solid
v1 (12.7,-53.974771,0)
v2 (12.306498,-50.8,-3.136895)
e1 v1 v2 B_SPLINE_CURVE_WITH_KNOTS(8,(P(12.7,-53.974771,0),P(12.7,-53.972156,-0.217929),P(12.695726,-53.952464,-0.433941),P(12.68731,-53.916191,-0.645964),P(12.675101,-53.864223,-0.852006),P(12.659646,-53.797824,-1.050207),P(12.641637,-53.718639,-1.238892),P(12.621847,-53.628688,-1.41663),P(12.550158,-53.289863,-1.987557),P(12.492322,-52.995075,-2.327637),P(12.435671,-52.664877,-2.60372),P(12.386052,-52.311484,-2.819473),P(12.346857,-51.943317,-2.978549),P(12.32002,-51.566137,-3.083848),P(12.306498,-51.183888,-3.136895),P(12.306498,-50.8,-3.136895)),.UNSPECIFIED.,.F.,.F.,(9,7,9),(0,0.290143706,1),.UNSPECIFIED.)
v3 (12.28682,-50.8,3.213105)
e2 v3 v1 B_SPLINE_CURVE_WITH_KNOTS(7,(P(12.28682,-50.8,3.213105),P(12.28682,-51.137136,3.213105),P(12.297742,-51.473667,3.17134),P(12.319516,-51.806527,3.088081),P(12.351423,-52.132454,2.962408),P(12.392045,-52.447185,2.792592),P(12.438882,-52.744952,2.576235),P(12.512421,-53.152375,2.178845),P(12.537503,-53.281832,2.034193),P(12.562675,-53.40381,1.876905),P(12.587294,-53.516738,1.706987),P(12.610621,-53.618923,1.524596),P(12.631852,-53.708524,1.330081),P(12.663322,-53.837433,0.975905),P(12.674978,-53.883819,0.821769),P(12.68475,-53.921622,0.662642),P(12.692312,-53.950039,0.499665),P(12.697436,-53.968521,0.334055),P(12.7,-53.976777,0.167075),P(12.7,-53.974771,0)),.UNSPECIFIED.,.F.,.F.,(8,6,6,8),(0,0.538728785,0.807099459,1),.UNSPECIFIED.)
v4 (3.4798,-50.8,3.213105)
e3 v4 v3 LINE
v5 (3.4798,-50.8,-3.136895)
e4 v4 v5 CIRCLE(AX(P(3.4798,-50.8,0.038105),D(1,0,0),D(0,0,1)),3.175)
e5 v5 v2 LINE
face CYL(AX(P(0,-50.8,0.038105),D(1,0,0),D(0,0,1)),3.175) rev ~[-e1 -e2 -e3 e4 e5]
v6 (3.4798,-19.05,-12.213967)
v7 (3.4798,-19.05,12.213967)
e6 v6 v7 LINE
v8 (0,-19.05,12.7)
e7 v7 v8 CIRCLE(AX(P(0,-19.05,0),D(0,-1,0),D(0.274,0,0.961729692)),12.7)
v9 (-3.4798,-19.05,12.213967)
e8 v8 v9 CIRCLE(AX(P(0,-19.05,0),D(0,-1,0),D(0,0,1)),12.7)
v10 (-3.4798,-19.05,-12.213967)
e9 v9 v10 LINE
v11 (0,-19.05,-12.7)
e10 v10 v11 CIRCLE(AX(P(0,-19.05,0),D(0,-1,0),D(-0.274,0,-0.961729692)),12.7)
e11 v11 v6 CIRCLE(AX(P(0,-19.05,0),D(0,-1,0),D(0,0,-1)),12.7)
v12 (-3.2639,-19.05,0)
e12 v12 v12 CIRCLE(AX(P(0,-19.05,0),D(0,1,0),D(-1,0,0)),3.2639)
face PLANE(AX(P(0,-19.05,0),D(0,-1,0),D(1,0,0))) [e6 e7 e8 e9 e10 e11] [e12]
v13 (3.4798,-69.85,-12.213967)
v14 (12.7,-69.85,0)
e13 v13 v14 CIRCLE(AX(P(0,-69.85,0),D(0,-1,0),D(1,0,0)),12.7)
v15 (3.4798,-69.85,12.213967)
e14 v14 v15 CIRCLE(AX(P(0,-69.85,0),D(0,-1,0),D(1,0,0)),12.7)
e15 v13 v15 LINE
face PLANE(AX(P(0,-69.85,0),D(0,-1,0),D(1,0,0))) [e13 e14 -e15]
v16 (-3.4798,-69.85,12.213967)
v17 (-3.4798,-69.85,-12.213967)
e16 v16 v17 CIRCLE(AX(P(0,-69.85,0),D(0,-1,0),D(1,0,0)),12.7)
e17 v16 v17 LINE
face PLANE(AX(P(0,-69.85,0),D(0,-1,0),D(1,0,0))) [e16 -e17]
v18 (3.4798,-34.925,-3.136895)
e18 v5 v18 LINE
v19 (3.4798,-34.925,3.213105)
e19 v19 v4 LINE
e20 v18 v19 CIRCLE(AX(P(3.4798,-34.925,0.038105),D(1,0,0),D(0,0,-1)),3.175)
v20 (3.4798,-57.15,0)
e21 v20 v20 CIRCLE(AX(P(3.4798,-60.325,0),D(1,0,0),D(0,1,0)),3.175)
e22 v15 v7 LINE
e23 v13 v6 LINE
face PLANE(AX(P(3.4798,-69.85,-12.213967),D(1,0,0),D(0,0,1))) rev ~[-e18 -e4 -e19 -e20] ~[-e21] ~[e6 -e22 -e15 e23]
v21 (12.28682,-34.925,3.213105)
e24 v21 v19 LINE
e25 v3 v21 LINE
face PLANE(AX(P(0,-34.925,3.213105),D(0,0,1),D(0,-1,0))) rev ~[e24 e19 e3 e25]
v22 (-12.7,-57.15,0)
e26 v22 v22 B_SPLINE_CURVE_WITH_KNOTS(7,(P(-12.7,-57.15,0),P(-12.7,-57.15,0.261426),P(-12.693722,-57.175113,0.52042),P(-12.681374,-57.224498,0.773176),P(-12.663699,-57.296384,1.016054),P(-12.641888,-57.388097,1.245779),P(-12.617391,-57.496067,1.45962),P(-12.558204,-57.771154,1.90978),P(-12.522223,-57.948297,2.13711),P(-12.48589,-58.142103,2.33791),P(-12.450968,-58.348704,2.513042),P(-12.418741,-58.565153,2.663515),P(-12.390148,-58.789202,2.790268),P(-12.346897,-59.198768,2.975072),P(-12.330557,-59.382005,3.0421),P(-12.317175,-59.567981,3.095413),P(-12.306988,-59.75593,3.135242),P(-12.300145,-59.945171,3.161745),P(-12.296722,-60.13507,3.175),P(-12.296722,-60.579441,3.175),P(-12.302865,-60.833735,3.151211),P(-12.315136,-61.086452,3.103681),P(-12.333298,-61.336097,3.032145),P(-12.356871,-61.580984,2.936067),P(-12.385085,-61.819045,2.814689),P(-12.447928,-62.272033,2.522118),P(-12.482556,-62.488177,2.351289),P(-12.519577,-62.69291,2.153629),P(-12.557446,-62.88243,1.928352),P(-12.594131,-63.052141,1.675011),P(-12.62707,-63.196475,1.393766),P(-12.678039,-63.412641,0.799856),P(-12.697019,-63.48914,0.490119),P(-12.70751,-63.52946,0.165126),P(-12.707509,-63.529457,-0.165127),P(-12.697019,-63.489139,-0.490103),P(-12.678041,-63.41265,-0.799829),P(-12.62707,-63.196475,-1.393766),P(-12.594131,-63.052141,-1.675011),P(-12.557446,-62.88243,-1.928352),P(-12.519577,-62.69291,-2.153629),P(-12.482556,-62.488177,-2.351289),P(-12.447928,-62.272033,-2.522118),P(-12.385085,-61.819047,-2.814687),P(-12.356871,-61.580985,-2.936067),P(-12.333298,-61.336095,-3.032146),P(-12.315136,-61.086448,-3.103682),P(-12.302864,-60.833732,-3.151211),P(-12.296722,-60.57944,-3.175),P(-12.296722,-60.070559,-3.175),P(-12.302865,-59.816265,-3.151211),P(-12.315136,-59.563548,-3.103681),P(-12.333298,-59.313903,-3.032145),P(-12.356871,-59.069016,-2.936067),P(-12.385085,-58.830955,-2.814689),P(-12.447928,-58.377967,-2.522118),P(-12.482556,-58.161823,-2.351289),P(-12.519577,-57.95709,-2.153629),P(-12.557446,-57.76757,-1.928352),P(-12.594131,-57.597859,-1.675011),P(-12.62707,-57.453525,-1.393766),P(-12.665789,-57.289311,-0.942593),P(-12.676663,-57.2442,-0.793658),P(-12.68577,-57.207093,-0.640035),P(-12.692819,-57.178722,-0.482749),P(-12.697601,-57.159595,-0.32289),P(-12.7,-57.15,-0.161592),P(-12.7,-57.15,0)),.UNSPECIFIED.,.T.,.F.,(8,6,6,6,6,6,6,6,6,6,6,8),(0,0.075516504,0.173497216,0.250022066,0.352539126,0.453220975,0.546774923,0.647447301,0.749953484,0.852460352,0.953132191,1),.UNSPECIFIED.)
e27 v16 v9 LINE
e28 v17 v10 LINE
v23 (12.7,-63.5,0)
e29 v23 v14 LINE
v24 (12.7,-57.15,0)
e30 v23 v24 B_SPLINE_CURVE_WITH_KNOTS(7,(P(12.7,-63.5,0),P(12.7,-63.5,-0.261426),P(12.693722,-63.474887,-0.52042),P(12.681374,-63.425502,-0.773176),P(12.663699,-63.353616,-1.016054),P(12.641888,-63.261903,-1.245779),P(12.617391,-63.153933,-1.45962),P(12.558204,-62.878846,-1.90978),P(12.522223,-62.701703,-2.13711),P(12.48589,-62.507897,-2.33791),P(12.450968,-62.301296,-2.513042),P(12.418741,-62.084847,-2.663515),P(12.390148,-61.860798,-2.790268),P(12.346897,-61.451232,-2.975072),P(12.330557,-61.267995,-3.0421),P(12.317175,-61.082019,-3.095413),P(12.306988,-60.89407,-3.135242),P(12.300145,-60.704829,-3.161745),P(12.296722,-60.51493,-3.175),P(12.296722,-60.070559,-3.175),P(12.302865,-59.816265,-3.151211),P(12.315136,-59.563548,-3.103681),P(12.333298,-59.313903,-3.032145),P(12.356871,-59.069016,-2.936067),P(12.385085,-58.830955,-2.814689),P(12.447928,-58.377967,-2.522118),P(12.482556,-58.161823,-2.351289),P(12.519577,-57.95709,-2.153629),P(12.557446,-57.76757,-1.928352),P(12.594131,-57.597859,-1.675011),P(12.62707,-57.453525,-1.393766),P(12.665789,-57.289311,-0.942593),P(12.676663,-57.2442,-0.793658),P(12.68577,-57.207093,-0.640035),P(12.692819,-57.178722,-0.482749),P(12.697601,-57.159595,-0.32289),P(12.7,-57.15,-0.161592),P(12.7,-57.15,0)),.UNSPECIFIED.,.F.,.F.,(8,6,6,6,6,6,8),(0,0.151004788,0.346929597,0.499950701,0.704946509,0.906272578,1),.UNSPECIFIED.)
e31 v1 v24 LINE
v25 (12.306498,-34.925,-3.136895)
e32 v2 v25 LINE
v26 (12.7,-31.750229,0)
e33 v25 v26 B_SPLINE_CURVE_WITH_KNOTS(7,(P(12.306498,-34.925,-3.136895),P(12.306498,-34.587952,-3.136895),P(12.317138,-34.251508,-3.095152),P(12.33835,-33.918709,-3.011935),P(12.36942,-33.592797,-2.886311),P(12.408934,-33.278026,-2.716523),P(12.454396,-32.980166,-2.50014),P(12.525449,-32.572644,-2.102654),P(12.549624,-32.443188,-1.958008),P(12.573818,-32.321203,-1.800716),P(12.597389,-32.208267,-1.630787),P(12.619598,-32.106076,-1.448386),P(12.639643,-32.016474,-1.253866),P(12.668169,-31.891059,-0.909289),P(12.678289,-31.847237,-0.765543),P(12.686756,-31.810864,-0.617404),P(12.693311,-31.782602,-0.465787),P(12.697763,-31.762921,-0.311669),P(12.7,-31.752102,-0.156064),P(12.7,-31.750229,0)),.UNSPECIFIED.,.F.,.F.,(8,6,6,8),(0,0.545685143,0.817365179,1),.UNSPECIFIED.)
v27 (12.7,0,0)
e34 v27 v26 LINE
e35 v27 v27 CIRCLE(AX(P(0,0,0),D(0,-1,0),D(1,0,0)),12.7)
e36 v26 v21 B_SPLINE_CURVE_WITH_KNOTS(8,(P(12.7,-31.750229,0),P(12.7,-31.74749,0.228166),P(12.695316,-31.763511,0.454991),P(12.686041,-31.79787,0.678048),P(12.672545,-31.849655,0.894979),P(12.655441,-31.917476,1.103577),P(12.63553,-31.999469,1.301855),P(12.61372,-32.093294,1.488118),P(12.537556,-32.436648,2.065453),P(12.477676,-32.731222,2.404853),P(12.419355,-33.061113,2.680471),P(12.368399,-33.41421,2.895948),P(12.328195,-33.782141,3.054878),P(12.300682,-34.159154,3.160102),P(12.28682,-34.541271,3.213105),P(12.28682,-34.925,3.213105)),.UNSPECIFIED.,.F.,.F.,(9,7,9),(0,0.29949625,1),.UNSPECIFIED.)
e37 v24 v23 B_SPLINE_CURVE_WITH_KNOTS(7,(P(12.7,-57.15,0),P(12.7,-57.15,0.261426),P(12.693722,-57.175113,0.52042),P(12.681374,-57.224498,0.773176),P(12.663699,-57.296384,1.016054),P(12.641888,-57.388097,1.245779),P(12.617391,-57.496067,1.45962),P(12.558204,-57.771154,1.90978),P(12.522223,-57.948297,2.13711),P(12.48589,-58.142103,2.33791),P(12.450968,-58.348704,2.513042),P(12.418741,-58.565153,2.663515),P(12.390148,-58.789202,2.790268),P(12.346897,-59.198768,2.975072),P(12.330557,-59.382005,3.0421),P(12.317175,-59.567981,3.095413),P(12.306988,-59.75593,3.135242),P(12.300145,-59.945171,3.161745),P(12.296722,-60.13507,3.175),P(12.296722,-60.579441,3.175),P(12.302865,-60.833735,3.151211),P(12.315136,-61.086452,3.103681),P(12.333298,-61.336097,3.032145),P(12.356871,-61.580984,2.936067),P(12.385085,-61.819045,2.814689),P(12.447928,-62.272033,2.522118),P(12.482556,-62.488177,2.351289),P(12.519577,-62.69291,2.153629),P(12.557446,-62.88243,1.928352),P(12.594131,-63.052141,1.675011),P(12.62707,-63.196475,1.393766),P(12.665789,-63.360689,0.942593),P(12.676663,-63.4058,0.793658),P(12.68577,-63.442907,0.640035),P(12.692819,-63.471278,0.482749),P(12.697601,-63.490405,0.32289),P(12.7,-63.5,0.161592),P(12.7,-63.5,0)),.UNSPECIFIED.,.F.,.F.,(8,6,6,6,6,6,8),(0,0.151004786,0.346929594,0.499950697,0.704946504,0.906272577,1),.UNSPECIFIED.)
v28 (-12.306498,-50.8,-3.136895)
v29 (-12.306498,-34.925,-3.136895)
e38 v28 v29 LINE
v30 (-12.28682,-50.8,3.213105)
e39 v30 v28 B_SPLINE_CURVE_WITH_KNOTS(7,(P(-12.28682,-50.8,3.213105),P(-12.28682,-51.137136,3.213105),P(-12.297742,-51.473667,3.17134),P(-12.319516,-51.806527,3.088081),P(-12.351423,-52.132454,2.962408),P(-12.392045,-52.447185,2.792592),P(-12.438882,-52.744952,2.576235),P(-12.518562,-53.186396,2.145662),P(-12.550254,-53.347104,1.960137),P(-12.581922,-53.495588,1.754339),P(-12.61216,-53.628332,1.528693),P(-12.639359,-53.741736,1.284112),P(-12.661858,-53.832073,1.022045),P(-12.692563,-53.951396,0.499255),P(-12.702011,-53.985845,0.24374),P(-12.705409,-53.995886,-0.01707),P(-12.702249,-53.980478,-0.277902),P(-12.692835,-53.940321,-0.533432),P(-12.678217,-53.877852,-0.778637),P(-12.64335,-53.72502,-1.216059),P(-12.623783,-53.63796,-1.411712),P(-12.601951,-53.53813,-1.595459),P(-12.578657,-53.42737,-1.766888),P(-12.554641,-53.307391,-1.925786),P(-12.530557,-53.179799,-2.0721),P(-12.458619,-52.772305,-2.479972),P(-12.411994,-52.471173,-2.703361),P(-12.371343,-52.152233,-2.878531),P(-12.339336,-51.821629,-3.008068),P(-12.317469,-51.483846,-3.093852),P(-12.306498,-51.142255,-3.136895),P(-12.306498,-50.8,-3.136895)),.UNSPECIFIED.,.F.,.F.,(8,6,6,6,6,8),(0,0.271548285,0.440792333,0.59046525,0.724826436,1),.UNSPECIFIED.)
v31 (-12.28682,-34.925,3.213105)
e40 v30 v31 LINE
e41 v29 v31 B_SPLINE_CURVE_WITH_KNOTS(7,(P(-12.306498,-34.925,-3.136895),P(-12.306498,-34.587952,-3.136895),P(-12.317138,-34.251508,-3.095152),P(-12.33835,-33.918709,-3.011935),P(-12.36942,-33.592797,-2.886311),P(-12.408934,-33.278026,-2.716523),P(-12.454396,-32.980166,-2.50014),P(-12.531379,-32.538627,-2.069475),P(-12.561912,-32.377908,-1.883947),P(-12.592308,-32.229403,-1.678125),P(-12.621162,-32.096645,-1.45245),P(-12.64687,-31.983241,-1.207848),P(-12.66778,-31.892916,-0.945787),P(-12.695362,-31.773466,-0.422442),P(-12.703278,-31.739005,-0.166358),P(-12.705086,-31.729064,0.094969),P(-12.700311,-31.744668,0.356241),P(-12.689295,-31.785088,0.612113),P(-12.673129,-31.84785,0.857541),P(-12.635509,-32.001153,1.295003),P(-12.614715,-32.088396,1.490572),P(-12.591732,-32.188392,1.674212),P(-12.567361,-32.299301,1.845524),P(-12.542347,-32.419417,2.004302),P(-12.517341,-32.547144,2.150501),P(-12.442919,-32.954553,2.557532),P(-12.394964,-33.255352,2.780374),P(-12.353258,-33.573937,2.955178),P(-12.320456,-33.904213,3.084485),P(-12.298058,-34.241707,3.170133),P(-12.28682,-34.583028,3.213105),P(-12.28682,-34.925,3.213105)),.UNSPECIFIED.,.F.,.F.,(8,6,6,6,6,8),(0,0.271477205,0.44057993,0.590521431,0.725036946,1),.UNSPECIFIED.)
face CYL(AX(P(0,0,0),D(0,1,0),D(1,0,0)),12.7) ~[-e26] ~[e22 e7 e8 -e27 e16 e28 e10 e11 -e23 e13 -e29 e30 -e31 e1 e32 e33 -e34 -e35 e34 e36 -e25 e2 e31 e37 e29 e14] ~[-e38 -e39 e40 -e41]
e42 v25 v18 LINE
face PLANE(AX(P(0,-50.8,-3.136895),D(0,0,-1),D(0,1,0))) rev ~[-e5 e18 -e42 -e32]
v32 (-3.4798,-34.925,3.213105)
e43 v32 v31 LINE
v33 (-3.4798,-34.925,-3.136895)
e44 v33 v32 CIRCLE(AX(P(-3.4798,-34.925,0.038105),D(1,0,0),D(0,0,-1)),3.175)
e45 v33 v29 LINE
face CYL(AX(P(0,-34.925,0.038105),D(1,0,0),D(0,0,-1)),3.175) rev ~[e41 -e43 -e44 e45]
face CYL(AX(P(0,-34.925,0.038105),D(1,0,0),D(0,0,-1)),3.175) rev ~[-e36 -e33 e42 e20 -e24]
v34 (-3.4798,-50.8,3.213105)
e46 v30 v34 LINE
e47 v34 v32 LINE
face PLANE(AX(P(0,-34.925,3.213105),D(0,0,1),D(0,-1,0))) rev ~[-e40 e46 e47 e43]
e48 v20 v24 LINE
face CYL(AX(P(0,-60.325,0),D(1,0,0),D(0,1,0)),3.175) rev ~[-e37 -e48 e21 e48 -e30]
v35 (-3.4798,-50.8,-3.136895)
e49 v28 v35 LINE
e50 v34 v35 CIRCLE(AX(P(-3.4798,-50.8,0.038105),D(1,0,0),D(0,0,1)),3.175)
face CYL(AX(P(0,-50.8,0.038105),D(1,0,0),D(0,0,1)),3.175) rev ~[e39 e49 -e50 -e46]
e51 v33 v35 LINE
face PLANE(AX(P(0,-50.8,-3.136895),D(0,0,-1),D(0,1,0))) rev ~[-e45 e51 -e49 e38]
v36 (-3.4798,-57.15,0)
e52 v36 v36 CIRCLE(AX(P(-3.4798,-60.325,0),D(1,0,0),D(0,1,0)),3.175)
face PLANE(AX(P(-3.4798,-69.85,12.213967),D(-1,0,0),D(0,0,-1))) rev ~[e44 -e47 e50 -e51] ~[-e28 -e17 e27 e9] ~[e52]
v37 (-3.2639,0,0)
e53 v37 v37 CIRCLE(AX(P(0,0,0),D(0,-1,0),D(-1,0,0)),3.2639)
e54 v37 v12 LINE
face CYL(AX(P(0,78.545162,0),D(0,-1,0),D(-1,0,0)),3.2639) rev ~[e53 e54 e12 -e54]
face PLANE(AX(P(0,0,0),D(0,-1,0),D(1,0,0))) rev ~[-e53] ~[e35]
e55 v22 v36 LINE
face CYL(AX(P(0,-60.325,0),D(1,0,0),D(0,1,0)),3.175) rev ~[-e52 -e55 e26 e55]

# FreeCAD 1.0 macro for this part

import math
import FreeCAD as App
import Part
import Sketcher
from FreeCAD import Vector
Q = App.Units.Quantity

doc = App.newDocument("Part")
body = doc.addObject("PartDesign::Body", "Body")

sketch1 = body.newObject("Sketcher::SketchObject", "Sketch")
sketch1.AttachmentSupport = (doc.getObject("XZ_Plane"), [""])
sketch1.MapMode = "FlatFace"
sketch1.addGeometry(Part.Circle(Vector(0, 0, 0), Vector(0, 0, 1), 13), False)
sketch1.addConstraint([
    Sketcher.Constraint("Coincident", 0, 3, -1, 1),
    Sketcher.Constraint("Diameter", 0, Q("1 in")),
])
pad1 = body.newObject("PartDesign::Pad", "Pad")
pad1.Profile = sketch1
pad1.Length = Q("2.75 in")

sketch2 = body.newObject("Sketcher::SketchObject", "Sketch001")
sketch2.AttachmentSupport = (doc.getObject("XZ_Plane"), [""])
sketch2.MapMode = "FlatFace"
sketch2.addGeometry(Part.Circle(Vector(0, 0, 0), Vector(0, 0, 1), 3.3), False)
sketch2.addConstraint([
    Sketcher.Constraint("Coincident", 0, 3, -1, 1),
    Sketcher.Constraint("Diameter", 0, Q("0.257 in")),
])
doc.recompute()
hole = body.newObject("PartDesign::Hole", "Hole")
hole.Profile = sketch2
hole.ThreadType = "None"
hole.Diameter = Q("0.257 in")
hole.DepthType = "ThroughAll"
hole.Reversed = True

sketch3 = body.newObject("Sketcher::SketchObject", "Sketch002")
sketch3.AttachmentSupport = (doc.getObject("XZ_Plane"), [""])
sketch3.MapMode = "FlatFace"
sketch3.AttachmentOffset = App.Placement(Vector(0, 0, 2.75 * 25.4), App.Rotation())
sketch3.addGeometry([
    Part.ArcOfCircle(Part.Circle(Vector(0, 0, 0), Vector(0, 0, 1), 12.7), math.radians(90), math.radians(105.9)),
    Part.LineSegment(Vector(-3.5, 12.2, 0), Vector(-3.5, -12.2, 0)),
    Part.ArcOfCircle(Part.Circle(Vector(0, 0, 0), Vector(0, 0, 1), 12.7), math.radians(-105.9), math.radians(-90)),
    Part.ArcOfCircle(Part.Circle(Vector(0, 0, 0), Vector(0, 0, 1), 12.7), math.radians(-90), math.radians(-74.1)),
    Part.LineSegment(Vector(3.5, -12.2, 0), Vector(3.5, 12.2, 0)),
    Part.ArcOfCircle(Part.Circle(Vector(0, 0, 0), Vector(0, 0, 1), 12.7), math.radians(74.1), math.radians(90)),
    Part.Circle(Vector(0, 0, 0), Vector(0, 0, 1), 3.3),
], False)
sketch3.addConstraint([
    Sketcher.Constraint("Coincident", 0, 2, 1, 1),
    Sketcher.Constraint("Coincident", 1, 2, 2, 1),
    Sketcher.Constraint("Tangent", 2, 2, 3, 1),
    Sketcher.Constraint("Coincident", 3, 2, 4, 1),
    Sketcher.Constraint("Coincident", 4, 2, 5, 1),
    Sketcher.Constraint("Tangent", 5, 2, 0, 1),
    Sketcher.Constraint("Vertical", 1),
    Sketcher.Constraint("Vertical", 4),
    Sketcher.Constraint("Coincident", 0, 3, -1, 1),
    Sketcher.Constraint("Coincident", 2, 3, -1, 1),
    Sketcher.Constraint("Coincident", 6, 3, -1, 1),
    Sketcher.Constraint("Equal", 0, 2),
    Sketcher.Constraint("Equal", 2, 3),
    Sketcher.Constraint("Equal", 3, 5),
    Sketcher.Constraint("PointOnObject", 2, 2, -2),
    Sketcher.Constraint("PointOnObject", 5, 2, -2),
    Sketcher.Constraint("Horizontal", 1, 2, 3, 2),
    Sketcher.Constraint("Radius", 0, Q("0.5 in")),
    Sketcher.Constraint("Diameter", 6, Q("0.257 in")),
    Sketcher.Constraint("DistanceX", 0, 2, -1, 1, Q("0.137 in")),
])
pocket1 = body.newObject("PartDesign::Pocket", "Pocket")
pocket1.Profile = sketch3
pocket1.Length = Q("2 in")

sketch4 = body.newObject("Sketcher::SketchObject", "Sketch003")
sketch4.AttachmentSupport = (doc.getObject("YZ_Plane"), [""])
sketch4.MapMode = "FlatFace"
sketch4.addGeometry(Part.Circle(Vector(-60.3, 0, 0), Vector(0, 0, 1), 3.2), False)
sketch4.addConstraint([
    Sketcher.Constraint("PointOnObject", 0, 3, -1),
    Sketcher.Constraint("Diameter", 0, Q("0.25 in")),
    Sketcher.Constraint("DistanceX", 0, 3, -1, 1, Q("2.375 in")),
])
pocket2 = body.newObject("PartDesign::Pocket", "Pocket001")
pocket2.Profile = sketch4
pocket2.Length = Q("1 in")
pocket2.Midplane = True

sketch5 = body.newObject("Sketcher::SketchObject", "Sketch004")
sketch5.AttachmentSupport = (doc.getObject("YZ_Plane"), [""])
sketch5.MapMode = "FlatFace"
sketch5.addGeometry([
    Part.LineSegment(Vector(-34.9, 3.2, 0), Vector(-50.8, 3.2, 0)),
    Part.ArcOfCircle(Part.Circle(Vector(-50.8, 0, 0), Vector(0, 0, 1), 3.2), math.radians(90), math.radians(270)),
    Part.LineSegment(Vector(-50.8, -3.1, 0), Vector(-34.9, -3.1, 0)),
    Part.ArcOfCircle(Part.Circle(Vector(-34.9, 0, 0), Vector(0, 0, 1), 3.2), math.radians(-90), math.radians(90)),
], False)
sketch5.addConstraint([
    Sketcher.Constraint("Tangent", 0, 2, 1, 1),
    Sketcher.Constraint("Tangent", 1, 2, 2, 1),
    Sketcher.Constraint("Tangent", 2, 2, 3, 1),
    Sketcher.Constraint("Tangent", 3, 2, 0, 1),
    Sketcher.Constraint("Horizontal", 0),
    Sketcher.Constraint("Horizontal", 2),
    Sketcher.Constraint("DistanceX", 1, 3, -1, 1, Q("2 in")),
    Sketcher.Constraint("Radius", 1, Q("0.125 in")),
    Sketcher.Constraint("DistanceX", 0, 2, 0, 1, Q("0.625 in")),
    Sketcher.Constraint("DistanceY", -1, 1, 1, 3, Q("0.0015002 in")),
])
pocket3 = body.newObject("PartDesign::Pocket", "Pocket002")
pocket3.Profile = sketch5
pocket3.Length = Q("1 in")
pocket3.Midplane = True

doc.recompute()
